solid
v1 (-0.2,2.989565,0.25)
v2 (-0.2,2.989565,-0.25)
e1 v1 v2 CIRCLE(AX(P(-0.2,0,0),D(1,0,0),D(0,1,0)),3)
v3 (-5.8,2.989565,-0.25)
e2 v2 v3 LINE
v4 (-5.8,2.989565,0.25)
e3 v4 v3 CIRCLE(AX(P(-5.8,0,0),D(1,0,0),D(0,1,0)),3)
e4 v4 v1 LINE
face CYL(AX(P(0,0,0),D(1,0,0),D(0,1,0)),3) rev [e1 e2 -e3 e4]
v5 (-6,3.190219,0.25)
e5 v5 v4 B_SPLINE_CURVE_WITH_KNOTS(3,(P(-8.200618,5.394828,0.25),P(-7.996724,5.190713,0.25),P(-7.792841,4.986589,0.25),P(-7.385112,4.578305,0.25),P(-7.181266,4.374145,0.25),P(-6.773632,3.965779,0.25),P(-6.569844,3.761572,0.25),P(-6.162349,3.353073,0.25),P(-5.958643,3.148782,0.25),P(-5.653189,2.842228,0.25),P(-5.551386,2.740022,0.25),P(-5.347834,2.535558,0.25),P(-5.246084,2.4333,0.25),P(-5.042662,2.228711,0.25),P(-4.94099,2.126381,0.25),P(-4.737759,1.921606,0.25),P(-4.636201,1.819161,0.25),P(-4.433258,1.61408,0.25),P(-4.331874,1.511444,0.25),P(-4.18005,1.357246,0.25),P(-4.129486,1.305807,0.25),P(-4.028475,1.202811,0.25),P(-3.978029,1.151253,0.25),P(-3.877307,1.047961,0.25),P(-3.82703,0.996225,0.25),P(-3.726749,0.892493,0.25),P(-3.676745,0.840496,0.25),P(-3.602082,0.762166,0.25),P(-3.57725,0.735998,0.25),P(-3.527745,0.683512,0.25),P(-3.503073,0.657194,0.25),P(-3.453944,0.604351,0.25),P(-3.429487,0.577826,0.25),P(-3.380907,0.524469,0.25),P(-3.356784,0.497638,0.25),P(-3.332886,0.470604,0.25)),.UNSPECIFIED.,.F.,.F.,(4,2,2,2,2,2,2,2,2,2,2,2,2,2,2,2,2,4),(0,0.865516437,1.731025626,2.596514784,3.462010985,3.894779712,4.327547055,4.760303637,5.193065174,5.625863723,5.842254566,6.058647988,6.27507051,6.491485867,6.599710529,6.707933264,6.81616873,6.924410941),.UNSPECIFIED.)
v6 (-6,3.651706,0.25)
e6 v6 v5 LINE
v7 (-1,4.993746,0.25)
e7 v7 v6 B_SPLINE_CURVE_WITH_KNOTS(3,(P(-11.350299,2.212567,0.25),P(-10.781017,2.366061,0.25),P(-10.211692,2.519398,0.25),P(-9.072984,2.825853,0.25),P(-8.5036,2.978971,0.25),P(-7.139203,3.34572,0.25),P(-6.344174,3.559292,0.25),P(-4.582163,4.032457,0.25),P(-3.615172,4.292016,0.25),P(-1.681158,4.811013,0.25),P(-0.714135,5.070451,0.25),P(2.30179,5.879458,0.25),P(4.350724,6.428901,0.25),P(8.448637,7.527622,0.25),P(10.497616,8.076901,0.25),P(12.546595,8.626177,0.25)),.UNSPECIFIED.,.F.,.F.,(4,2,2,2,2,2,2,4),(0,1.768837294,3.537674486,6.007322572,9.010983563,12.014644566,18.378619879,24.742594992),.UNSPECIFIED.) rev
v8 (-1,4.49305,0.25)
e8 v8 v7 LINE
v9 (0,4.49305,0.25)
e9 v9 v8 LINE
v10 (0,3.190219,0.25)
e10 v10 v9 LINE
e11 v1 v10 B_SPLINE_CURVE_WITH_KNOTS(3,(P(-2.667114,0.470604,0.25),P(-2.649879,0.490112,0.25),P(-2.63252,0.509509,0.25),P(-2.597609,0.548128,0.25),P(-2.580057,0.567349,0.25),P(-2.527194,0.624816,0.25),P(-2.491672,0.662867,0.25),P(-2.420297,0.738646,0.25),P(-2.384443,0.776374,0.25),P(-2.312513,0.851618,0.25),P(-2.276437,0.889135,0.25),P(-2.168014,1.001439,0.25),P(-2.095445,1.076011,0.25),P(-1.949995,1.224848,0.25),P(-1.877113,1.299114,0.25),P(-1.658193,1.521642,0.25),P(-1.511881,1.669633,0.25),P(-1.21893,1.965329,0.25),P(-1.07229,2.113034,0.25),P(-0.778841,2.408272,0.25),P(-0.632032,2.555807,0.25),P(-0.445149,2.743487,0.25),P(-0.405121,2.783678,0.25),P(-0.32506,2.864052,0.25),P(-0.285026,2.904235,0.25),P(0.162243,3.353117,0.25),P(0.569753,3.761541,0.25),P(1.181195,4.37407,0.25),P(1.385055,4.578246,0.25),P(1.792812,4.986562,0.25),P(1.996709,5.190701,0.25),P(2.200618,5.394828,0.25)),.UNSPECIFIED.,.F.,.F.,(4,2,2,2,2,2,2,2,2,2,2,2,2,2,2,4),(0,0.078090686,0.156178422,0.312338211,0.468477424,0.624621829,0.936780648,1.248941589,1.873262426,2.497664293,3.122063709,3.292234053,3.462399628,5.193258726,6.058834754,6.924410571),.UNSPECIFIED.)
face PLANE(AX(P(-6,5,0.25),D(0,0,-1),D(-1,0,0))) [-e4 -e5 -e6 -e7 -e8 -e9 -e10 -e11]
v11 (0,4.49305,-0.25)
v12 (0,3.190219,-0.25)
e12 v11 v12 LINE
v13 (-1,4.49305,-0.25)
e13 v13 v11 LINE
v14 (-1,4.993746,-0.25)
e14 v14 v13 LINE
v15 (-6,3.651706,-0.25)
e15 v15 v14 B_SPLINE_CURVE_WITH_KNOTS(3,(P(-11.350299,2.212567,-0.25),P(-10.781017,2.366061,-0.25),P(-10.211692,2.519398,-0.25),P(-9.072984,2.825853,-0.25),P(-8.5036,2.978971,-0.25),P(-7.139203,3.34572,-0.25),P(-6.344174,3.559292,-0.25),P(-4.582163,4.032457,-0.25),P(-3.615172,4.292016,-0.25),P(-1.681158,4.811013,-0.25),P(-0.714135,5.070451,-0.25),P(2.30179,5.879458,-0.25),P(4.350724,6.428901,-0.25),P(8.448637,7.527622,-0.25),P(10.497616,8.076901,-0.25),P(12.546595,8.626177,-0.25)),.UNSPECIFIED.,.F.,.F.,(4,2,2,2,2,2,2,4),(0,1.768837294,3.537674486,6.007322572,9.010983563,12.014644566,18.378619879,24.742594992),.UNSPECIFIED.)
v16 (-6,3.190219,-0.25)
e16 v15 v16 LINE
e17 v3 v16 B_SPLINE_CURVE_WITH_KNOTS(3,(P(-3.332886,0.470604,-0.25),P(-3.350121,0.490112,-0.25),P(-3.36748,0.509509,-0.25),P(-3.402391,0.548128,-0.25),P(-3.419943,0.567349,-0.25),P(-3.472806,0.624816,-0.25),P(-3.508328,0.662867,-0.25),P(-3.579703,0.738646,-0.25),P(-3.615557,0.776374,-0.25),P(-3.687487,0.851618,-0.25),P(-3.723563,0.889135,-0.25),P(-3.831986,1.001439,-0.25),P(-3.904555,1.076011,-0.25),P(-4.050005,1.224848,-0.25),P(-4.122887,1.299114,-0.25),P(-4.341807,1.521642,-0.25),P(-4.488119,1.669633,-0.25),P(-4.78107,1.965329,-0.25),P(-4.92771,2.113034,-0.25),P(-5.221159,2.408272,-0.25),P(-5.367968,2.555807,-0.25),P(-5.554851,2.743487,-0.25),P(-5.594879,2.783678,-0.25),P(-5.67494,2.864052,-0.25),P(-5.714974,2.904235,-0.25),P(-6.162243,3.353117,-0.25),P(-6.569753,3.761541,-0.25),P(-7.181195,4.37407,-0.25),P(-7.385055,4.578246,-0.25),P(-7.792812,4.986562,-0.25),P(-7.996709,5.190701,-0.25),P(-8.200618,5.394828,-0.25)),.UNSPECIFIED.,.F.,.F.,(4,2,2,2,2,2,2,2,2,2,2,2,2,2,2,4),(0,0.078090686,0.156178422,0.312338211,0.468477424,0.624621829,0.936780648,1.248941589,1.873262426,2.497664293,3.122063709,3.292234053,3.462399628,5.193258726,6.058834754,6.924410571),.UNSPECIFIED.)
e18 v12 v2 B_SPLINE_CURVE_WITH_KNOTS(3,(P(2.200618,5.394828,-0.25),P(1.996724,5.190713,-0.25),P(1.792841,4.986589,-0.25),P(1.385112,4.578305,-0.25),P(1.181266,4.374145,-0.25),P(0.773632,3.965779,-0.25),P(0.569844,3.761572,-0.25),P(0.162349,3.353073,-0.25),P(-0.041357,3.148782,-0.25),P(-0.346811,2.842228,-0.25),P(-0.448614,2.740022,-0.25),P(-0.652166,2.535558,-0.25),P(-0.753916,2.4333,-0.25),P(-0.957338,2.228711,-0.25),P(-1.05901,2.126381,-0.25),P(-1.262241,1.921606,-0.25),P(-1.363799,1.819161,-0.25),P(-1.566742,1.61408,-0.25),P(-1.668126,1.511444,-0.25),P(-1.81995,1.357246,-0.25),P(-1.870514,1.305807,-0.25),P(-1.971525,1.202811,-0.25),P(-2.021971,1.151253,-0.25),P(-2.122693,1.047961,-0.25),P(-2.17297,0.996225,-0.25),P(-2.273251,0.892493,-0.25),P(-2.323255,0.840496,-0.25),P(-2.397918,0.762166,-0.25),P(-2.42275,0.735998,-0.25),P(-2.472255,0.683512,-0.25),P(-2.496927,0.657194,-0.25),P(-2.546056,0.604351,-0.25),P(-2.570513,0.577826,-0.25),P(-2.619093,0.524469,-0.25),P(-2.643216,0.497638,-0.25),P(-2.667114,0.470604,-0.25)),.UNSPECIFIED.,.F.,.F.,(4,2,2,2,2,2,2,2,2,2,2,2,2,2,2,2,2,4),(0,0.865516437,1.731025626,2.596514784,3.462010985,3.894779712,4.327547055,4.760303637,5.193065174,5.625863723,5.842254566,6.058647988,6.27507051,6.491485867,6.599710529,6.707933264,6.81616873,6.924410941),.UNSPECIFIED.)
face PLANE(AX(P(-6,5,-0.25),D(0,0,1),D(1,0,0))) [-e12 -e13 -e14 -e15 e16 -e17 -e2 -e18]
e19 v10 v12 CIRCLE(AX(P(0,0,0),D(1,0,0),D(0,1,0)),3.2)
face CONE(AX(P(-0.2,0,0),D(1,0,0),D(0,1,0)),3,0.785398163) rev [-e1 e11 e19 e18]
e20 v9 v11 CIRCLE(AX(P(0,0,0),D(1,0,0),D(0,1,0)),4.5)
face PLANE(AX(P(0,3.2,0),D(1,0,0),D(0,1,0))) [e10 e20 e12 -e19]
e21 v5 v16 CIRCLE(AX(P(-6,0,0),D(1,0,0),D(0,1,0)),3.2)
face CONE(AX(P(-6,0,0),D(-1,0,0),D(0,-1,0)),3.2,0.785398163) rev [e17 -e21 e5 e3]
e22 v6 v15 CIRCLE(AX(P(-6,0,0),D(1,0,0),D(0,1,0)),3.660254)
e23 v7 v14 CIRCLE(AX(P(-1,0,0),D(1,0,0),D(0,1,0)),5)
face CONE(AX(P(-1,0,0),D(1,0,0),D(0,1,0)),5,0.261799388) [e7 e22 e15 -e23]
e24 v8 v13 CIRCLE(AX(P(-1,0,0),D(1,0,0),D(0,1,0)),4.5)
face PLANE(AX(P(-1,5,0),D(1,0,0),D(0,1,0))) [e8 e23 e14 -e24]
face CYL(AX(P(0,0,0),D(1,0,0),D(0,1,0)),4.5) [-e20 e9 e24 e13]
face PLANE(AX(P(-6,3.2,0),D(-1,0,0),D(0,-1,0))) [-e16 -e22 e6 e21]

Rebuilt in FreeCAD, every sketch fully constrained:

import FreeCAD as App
import Part
import Sketcher
from FreeCAD import Vector
Q = App.Units.Quantity

doc = App.newDocument("Part")
body = doc.addObject("PartDesign::Body", "Body")

# Sketch on XY plane
sketch1 = body.newObject("Sketcher::SketchObject", "Sketch")
sketch1.AttachmentSupport = (doc.getObject("XY_Plane"), [""])
sketch1.MapMode = "FlatFace"
sketch1.addGeometry(Part.LineSegment(Vector(-5.8, 3, 0), Vector(-0.2, 3, 0)), False)
sketch1.addGeometry(Part.LineSegment(Vector(-0.2, 3, 0), Vector(0, 3.2, 0)), False)
sketch1.addGeometry(Part.LineSegment(Vector(0, 3.2, 0), Vector(0, 4.5, 0)), False)
sketch1.addGeometry(Part.LineSegment(Vector(0, 4.5, 0), Vector(-1, 4.5, 0)), False)
sketch1.addGeometry(Part.LineSegment(Vector(-1, 4.5, 0), Vector(-1, 5, 0)), False)
sketch1.addGeometry(Part.LineSegment(Vector(-1, 5, 0), Vector(-6, 3.660254, 0)), False)
sketch1.addGeometry(Part.LineSegment(Vector(-6, 3.660254, 0), Vector(-6, 3.2, 0)), False)
sketch1.addGeometry(Part.LineSegment(Vector(-6, 3.2, 0), Vector(-5.8, 3, 0)), False)
sketch1.addConstraint(Sketcher.Constraint("Coincident", 0, 2, 1, 1))
sketch1.addConstraint(Sketcher.Constraint("Coincident", 1, 2, 2, 1))
sketch1.addConstraint(Sketcher.Constraint("Coincident", 2, 2, 3, 1))
sketch1.addConstraint(Sketcher.Constraint("Coincident", 3, 2, 4, 1))
sketch1.addConstraint(Sketcher.Constraint("Coincident", 4, 2, 5, 1))
sketch1.addConstraint(Sketcher.Constraint("Coincident", 5, 2, 6, 1))
sketch1.addConstraint(Sketcher.Constraint("Coincident", 6, 2, 7, 1))
sketch1.addConstraint(Sketcher.Constraint("Coincident", 7, 2, 0, 1))
sketch1.addConstraint(Sketcher.Constraint("Horizontal", 0))
sketch1.addConstraint(Sketcher.Constraint("Vertical", 2))
sketch1.addConstraint(Sketcher.Constraint("Horizontal", 3))
sketch1.addConstraint(Sketcher.Constraint("Vertical", 4))
sketch1.addConstraint(Sketcher.Constraint("Vertical", 6))
sketch1.addConstraint(Sketcher.Constraint("PointOnObject", 1, 2, -2))
sketch1.addConstraint(Sketcher.Constraint("Perpendicular", 1, 7))
sketch1.addConstraint(Sketcher.Constraint("Horizontal", 1, 2, 6, 2))
sketch1.addConstraint(Sketcher.Constraint("Equal", 1, 7))
sketch1.addConstraint(Sketcher.Constraint("DistanceX", 3, 2, 3, 1, 1.0))
sketch1.addConstraint(Sketcher.Constraint("Angle", 5, Q("-165 deg")))
sketch1.addConstraint(Sketcher.Constraint("DistanceX", 0, 1, 0, 2, 5.6))
sketch1.addConstraint(Sketcher.Constraint("DistanceY", 2, 1, 2, 2, 1.3))
sketch1.addConstraint(Sketcher.Constraint("DistanceY", 4, 1, 4, 2, 0.5))
sketch1.addConstraint(Sketcher.Constraint("DistanceY", -1, 1, 0, 2, 3.0))
sketch1.addConstraint(Sketcher.Constraint("DistanceY", -1, 1, 4, 2, 5.0))
revolution = body.newObject("PartDesign::Revolution", "Revolution")
revolution.Profile = sketch1
revolution.ReferenceAxis = (sketch1, ["H_Axis"])
revolution.Angle = 360

# Sketch on XZ plane
sketch2 = body.newObject("Sketcher::SketchObject", "Sketch001")
sketch2.AttachmentSupport = (doc.getObject("XZ_Plane"), [""])
sketch2.MapMode = "FlatFace"
sketch2.addGeometry(Part.LineSegment(Vector(-6, -0.25, 0), Vector(-6, 0.25, 0)), False)
sketch2.addGeometry(Part.LineSegment(Vector(-6, 0.25, 0), Vector(0, 0.25, 0)), False)
sketch2.addGeometry(Part.LineSegment(Vector(0, 0.25, 0), Vector(0, -0.25, 0)), False)
sketch2.addGeometry(Part.LineSegment(Vector(0, -0.25, 0), Vector(-6, -0.25, 0)), False)
sketch2.addConstraint(Sketcher.Constraint("Coincident", 0, 2, 1, 1))
sketch2.addConstraint(Sketcher.Constraint("Coincident", 1, 2, 2, 1))
sketch2.addConstraint(Sketcher.Constraint("Coincident", 2, 2, 3, 1))
sketch2.addConstraint(Sketcher.Constraint("Coincident", 3, 2, 0, 1))
sketch2.addConstraint(Sketcher.Constraint("Vertical", 0))
sketch2.addConstraint(Sketcher.Constraint("Horizontal", 1))
sketch2.addConstraint(Sketcher.Constraint("Vertical", 2))
sketch2.addConstraint(Sketcher.Constraint("Horizontal", 3))
sketch2.addConstraint(Sketcher.Constraint("Symmetric", 1, 2, 2, 2, -1, 1))
sketch2.addConstraint(Sketcher.Constraint("DistanceX", 1, 1, 1, 2, 6.0))
sketch2.addConstraint(Sketcher.Constraint("DistanceY", 0, 1, 0, 2, 0.5))
pocket1 = body.newObject("PartDesign::Pocket", "Pocket")
pocket1.Profile = sketch2
pocket1.Type = "ThroughAll"

doc.recompute()
